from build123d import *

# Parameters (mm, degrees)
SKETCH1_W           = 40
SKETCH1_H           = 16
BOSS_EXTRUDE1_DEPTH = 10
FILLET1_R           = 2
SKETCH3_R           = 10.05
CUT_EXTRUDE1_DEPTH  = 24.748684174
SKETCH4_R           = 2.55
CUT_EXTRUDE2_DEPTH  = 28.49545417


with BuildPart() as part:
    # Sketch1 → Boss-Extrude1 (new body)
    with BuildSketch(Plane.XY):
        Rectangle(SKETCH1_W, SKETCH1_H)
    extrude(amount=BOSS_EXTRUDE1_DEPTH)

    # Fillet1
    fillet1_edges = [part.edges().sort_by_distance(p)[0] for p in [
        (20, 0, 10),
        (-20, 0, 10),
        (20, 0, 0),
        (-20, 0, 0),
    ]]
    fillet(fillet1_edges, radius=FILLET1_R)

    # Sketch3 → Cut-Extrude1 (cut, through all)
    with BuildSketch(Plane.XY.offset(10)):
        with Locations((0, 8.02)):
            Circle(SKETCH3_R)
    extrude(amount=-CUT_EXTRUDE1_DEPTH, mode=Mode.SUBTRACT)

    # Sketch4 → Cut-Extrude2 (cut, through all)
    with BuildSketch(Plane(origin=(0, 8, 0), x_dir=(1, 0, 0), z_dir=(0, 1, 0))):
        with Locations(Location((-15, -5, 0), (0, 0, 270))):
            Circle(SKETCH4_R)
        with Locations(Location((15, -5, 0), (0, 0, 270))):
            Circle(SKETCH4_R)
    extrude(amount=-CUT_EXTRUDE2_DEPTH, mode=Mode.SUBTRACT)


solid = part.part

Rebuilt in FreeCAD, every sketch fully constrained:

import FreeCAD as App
import Part
import Sketcher
from FreeCAD import Vector
Q = App.Units.Quantity


def edges_at(feature, points):
    """Names of the edges that pass closest to the given points."""
    edges = feature.Shape.Edges
    near = lambda p: min(range(len(edges)), key=lambda i: edges[i].distToShape(Part.Vertex(*p))[0])
    return sorted({f"Edge{near(p) + 1}" for p in points})


def add_polygon(sketch, points):
    """Adds a closed chain of lines whose ends are joined by coincident constraints."""
    first, n = sketch.GeometryCount, len(points)
    for a, b in zip(points, points[1:] + points[:1]):
        sketch.addGeometry(Part.LineSegment(App.Vector(*a, 0), App.Vector(*b, 0)), False)
    for i in range(n):
        sketch.addConstraint(Sketcher.Constraint("Coincident", first + i, 2, first + (i + 1) % n, 1))

doc = App.newDocument("Part")
params = doc.addObject("Spreadsheet::Sheet", "Params")
for row, (alias, value) in enumerate([
    ("sketch1_width", "40 mm"),
    ("sketch1_height", "16 mm"),
    ("pad1_length", "10 mm"),
    ("fillet_radius", "2 mm"),
    ("sketch2_diameter", "20.1 mm"),
    ("sketch3_diameter", "5.1 mm"),
], start=1):
    params.set(f"A{row}", alias)
    params.set(f"B{row}", "=" + value)
    params.setAlias(f"B{row}", alias)

body = doc.addObject("PartDesign::Body", "Body")

sketch1 = body.newObject("Sketcher::SketchObject", "Sketch")
sketch1.AttachmentSupport = (doc.getObject("XY_Plane"), [""])
sketch1.MapMode = "FlatFace"
add_polygon(sketch1, [(-20, 8), (-20, -8), (20, -8), (20, 8)])
sketch1.addConstraint([
    Sketcher.Constraint("Vertical", 0),
    Sketcher.Constraint("Horizontal", 1),
    Sketcher.Constraint("Vertical", 2),
    Sketcher.Constraint("Horizontal", 3),
    Sketcher.Constraint("Symmetric", 0, 2, 2, 2, -1, 1),
    Sketcher.Constraint("DistanceX", 1, 1, 1, 2, Q("40 mm")),
    Sketcher.Constraint("DistanceY", 0, 2, 0, 1, Q("16 mm")),
])
sketch1.setExpression("Constraints[9]", "Params.sketch1_width")
sketch1.setExpression("Constraints[10]", "Params.sketch1_height")
pad1 = body.newObject("PartDesign::Pad", "Pad")
pad1.Profile = sketch1
pad1.setExpression("Length", "Params.pad1_length")
doc.recompute()

fillet = body.newObject("PartDesign::Fillet", "Fillet")
fillet.Base = (pad1, edges_at(pad1, [
    (20, 0, 10),
    (-20, 0, 10),
    (20, 0, 0),
    (-20, 0, 0),
]))
fillet.setExpression("Radius", "Params.fillet_radius")

sketch2 = body.newObject("Sketcher::SketchObject", "Sketch001")
sketch2.AttachmentSupport = (doc.getObject("XY_Plane"), [""])
sketch2.MapMode = "FlatFace"
sketch2.AttachmentOffset = App.Placement(Vector(0, 0, 10), App.Rotation())
sketch2.addGeometry(Part.Circle(Vector(0, 8, 0), Vector(0, 0, 1), 10), False)
sketch2.addConstraint([
    Sketcher.Constraint("PointOnObject", 0, 3, -2),
    Sketcher.Constraint("Diameter", 0, Q("20.1 mm")),
    Sketcher.Constraint("DistanceY", -1, 1, 0, 3, Q("8.02 mm")),
])
sketch2.setExpression("Constraints[1]", "Params.sketch2_diameter")
pocket1 = body.newObject("PartDesign::Pocket", "Pocket")
pocket1.Profile = sketch2
pocket1.Type = "ThroughAll"

sketch3 = body.newObject("Sketcher::SketchObject", "Sketch002")
sketch3.AttachmentSupport = (doc.getObject("XZ_Plane"), [""])
sketch3.MapMode = "FlatFace"
sketch3.AttachmentOffset = App.Placement(Vector(0, 0, -8), App.Rotation())
sketch3.addGeometry([
    Part.Circle(Vector(-15, 5, 0), Vector(0, 0, 1), 2.5),
    Part.Circle(Vector(15, 5, 0), Vector(0, 0, 1), 2.5),
], False)
sketch3.addConstraint([
    Sketcher.Constraint("Equal", 0, 1),
    Sketcher.Constraint("Symmetric", 0, 3, 1, 3, -2),
    Sketcher.Constraint("Diameter", 0, Q("5.1 mm")),
    Sketcher.Constraint("DistanceX", 0, 3, -1, 1, Q("15 mm")),
    Sketcher.Constraint("DistanceY", -1, 1, 0, 3, Q("5 mm")),
])
sketch3.setExpression("Constraints[2]", "Params.sketch3_diameter")
pocket2 = body.newObject("PartDesign::Pocket", "Pocket001")
pocket2.Profile = sketch3
pocket2.Type = "ThroughAll"
pocket2.Reversed = True

doc.recompute()
